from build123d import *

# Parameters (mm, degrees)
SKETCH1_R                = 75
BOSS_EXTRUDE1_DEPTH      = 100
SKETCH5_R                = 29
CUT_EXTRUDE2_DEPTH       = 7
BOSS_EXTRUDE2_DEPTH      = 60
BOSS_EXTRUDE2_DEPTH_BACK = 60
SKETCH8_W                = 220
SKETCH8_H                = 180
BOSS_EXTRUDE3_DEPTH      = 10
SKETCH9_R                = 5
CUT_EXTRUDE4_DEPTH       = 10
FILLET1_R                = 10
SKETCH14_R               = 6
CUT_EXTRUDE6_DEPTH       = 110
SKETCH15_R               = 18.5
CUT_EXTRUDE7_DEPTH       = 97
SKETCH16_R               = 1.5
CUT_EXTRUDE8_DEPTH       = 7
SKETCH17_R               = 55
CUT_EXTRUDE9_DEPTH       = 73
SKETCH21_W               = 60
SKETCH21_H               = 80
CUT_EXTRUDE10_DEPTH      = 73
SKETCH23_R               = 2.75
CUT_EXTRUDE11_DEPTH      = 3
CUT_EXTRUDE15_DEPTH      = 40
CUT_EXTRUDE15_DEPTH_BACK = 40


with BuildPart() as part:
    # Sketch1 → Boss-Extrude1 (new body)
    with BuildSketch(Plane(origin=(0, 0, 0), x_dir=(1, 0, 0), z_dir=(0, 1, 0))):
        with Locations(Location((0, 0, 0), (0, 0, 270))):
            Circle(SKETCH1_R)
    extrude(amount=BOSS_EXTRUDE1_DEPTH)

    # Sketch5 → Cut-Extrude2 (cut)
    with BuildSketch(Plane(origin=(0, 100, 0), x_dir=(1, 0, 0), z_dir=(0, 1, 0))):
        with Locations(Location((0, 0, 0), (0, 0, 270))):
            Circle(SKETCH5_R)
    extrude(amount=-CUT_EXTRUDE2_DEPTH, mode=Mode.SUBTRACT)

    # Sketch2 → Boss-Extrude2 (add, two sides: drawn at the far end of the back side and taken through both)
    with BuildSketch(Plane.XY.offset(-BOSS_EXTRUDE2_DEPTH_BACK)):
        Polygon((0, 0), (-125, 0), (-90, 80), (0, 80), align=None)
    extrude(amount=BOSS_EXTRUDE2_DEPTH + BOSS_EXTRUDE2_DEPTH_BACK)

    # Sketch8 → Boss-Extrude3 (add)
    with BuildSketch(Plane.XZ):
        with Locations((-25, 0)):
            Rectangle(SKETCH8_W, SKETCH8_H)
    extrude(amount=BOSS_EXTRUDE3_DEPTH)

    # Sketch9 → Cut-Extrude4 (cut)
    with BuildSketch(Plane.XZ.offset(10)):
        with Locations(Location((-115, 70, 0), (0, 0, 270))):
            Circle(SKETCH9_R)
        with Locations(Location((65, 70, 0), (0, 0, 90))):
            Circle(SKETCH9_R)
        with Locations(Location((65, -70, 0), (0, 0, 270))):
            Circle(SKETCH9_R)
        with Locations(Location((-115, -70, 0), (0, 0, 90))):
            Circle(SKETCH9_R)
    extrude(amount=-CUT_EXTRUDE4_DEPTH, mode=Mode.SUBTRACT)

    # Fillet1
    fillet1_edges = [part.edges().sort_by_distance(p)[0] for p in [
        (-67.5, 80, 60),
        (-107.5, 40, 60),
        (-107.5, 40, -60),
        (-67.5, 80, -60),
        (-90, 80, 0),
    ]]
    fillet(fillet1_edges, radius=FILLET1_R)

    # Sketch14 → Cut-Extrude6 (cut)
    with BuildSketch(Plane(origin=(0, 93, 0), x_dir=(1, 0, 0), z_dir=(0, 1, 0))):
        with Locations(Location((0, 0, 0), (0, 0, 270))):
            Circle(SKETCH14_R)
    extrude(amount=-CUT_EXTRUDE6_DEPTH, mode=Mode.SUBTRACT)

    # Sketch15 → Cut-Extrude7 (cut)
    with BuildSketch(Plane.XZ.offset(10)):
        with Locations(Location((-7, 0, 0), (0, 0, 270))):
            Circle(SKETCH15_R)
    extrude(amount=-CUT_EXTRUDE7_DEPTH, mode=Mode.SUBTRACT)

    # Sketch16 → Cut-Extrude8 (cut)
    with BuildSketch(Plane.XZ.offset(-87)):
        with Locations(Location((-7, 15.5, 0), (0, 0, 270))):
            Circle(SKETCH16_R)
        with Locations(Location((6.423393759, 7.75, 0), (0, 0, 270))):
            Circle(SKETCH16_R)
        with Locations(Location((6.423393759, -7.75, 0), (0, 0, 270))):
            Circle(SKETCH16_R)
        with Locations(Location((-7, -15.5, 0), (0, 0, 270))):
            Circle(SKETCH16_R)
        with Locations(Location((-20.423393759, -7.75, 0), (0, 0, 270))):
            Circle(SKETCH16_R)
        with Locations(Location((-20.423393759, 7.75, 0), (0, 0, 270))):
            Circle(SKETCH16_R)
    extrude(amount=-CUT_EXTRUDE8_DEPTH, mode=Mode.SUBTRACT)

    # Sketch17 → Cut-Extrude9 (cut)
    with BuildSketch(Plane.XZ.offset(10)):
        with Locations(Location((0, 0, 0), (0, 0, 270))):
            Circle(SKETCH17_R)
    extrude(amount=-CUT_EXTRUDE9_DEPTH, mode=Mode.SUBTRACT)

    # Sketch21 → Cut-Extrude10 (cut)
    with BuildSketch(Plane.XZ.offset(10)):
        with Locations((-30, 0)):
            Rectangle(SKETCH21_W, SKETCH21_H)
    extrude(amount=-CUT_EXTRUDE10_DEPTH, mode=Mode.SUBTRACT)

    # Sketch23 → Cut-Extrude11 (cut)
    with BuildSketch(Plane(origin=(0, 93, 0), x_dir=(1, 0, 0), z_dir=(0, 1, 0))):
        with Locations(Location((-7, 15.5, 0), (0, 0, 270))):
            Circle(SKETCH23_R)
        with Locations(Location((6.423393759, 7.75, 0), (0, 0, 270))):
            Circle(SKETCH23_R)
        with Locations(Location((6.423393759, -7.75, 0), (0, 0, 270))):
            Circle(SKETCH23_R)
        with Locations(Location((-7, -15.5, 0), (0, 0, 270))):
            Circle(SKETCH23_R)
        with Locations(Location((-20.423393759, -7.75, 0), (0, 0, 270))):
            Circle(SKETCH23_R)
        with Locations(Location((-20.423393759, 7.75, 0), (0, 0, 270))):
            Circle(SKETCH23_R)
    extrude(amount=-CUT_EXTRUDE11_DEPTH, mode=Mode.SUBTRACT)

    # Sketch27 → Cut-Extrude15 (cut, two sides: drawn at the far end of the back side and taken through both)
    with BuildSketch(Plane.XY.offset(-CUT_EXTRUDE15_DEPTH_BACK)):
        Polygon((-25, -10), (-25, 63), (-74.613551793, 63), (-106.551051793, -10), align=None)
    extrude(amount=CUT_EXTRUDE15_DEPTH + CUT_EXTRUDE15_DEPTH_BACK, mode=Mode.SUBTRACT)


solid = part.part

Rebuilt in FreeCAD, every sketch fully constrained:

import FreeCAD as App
import Part
import Sketcher

V = App.Vector
Q = App.Units.Quantity


def edges_at(feature, points):
    """Names of the edges that pass closest to the given points."""
    edges = feature.Shape.Edges
    near = lambda p: min(range(len(edges)), key=lambda i: edges[i].distToShape(Part.Vertex(*p))[0])
    return sorted({f"Edge{near(p) + 1}" for p in points})


def add_polygon(sketch, points):
    """Adds a closed chain of lines whose ends are joined by coincident constraints."""
    first, n = sketch.GeometryCount, len(points)
    for a, b in zip(points, points[1:] + points[:1]):
        sketch.addGeometry(Part.LineSegment(App.Vector(*a, 0), App.Vector(*b, 0)), False)
    for i in range(n):
        sketch.addConstraint(Sketcher.Constraint("Coincident", first + i, 2, first + (i + 1) % n, 1))

doc = App.newDocument("Part")
body = doc.addObject("PartDesign::Body", "Body")

sketch1 = body.newObject("Sketcher::SketchObject", "Sketch")
sketch1.AttachmentSupport = (doc.getObject("XZ_Plane"), [""])
sketch1.MapMode = "FlatFace"
sketch1.addGeometry(Part.Circle(V(0, 0, 0), V(0, 0, 1), 75), False)
sketch1.addConstraint([
    Sketcher.Constraint("Coincident", 0, 3, -1, 1),
    Sketcher.Constraint("Diameter", 0, Q("150 mm")),
])
pad1 = body.newObject("PartDesign::Pad", "Pad")
pad1.Profile = sketch1
pad1.Length = 100
pad1.Reversed = True

sketch2 = body.newObject("Sketcher::SketchObject", "Sketch001")
sketch2.AttachmentSupport = (doc.getObject("XZ_Plane"), [""])
sketch2.MapMode = "FlatFace"
sketch2.AttachmentOffset = App.Placement(V(0, 0, -100), App.Rotation())
sketch2.addGeometry(Part.Circle(V(0, 0, 0), V(0, 0, 1), 29), False)
sketch2.addConstraint([
    Sketcher.Constraint("Coincident", 0, 3, -1, 1),
    Sketcher.Constraint("Diameter", 0, Q("58 mm")),
])
pocket1 = body.newObject("PartDesign::Pocket", "Pocket")
pocket1.Profile = sketch2
pocket1.Length = 7
pocket1.Reversed = True

sketch3 = body.newObject("Sketcher::SketchObject", "Sketch002")
sketch3.AttachmentSupport = (doc.getObject("XY_Plane"), [""])
sketch3.MapMode = "FlatFace"
add_polygon(sketch3, [(-125, 0), (0, 0), (0, 80), (-90, 80)])
sketch3.addConstraint([
    Sketcher.Constraint("Horizontal", 0),
    Sketcher.Constraint("Vertical", 1),
    Sketcher.Constraint("Horizontal", 2),
    Sketcher.Constraint("Coincident", 0, 2, -1, 1),
    Sketcher.Constraint("DistanceX", 0, 1, 0, 2, Q("125 mm")),
    Sketcher.Constraint("DistanceX", 2, 2, 2, 1, Q("90 mm")),
    Sketcher.Constraint("DistanceY", 1, 1, 1, 2, Q("80 mm")),
])
pad2 = body.newObject("PartDesign::Pad", "Pad001")
pad2.Profile = sketch3
pad2.Type = "TwoLengths"
pad2.Length = 60
pad2.Length2 = 60

sketch4 = body.newObject("Sketcher::SketchObject", "Sketch003")
sketch4.AttachmentSupport = (doc.getObject("XZ_Plane"), [""])
sketch4.MapMode = "FlatFace"
add_polygon(sketch4, [(-135, 90), (-135, -90), (85, -90), (85, 90)])
sketch4.addConstraint([
    Sketcher.Constraint("Vertical", 0),
    Sketcher.Constraint("Horizontal", 1),
    Sketcher.Constraint("Vertical", 2),
    Sketcher.Constraint("Horizontal", 3),
    Sketcher.Constraint("DistanceX", 1, 1, 1, 2, Q("220 mm")),
    Sketcher.Constraint("DistanceY", 0, 2, 0, 1, Q("180 mm")),
    Sketcher.Constraint("DistanceX", 0, 2, -1, 1, Q("135 mm")),
    Sketcher.Constraint("DistanceY", 0, 2, -1, 1, Q("90 mm")),
])
pad3 = body.newObject("PartDesign::Pad", "Pad002")
pad3.Profile = sketch4
pad3.Length = 10

sketch5 = body.newObject("Sketcher::SketchObject", "Sketch004")
sketch5.AttachmentSupport = (doc.getObject("XZ_Plane"), [""])
sketch5.MapMode = "FlatFace"
sketch5.AttachmentOffset = App.Placement(V(0, 0, 10), App.Rotation())
sketch5.addGeometry([
    Part.Circle(V(-115, 70, 0), V(0, 0, 1), 5),
    Part.Circle(V(65, 70, 0), V(0, 0, 1), 5),
    Part.Circle(V(65, -70, 0), V(0, 0, 1), 5),
    Part.Circle(V(-115, -70, 0), V(0, 0, 1), 5),
], False)
sketch5.addConstraint([
    Sketcher.Constraint("Equal", 0, 1),
    Sketcher.Constraint("Equal", 1, 2),
    Sketcher.Constraint("Equal", 2, 3),
    Sketcher.Constraint("Symmetric", 1, 3, 2, 3, -1),
    Sketcher.Constraint("Symmetric", 0, 3, 3, 3, -1),
    Sketcher.Constraint("Horizontal", 0, 3, 1, 3),
    Sketcher.Constraint("Diameter", 0, Q("10 mm")),
    Sketcher.Constraint("DistanceX", 0, 3, -1, 1, Q("115 mm")),
    Sketcher.Constraint("DistanceY", -1, 1, 0, 3, Q("70 mm")),
    Sketcher.Constraint("DistanceX", -1, 1, 1, 3, Q("65 mm")),
])
pocket2 = body.newObject("PartDesign::Pocket", "Pocket001")
pocket2.Profile = sketch5
pocket2.Length = 10
doc.recompute()

fillet = body.newObject("PartDesign::Fillet", "Fillet")
fillet.Base = (pocket2, edges_at(pocket2, [
    (-67.5, 80, 60),
    (-107.5, 40, 60),
    (-107.5, 40, -60),
    (-67.5, 80, -60),
    (-90, 80, 0),
]))
fillet.Radius = 10

sketch6 = body.newObject("Sketcher::SketchObject", "Sketch005")
sketch6.AttachmentSupport = (doc.getObject("XZ_Plane"), [""])
sketch6.MapMode = "FlatFace"
sketch6.AttachmentOffset = App.Placement(V(0, 0, -93), App.Rotation())
sketch6.addGeometry(Part.Circle(V(0, 0, 0), V(0, 0, 1), 6), False)
sketch6.addConstraint([
    Sketcher.Constraint("Coincident", 0, 3, -1, 1),
    Sketcher.Constraint("Diameter", 0, Q("12 mm")),
])
pocket3 = body.newObject("PartDesign::Pocket", "Pocket002")
pocket3.Profile = sketch6
pocket3.Length = 110
pocket3.Reversed = True

sketch7 = body.newObject("Sketcher::SketchObject", "Sketch006")
sketch7.AttachmentSupport = (doc.getObject("XZ_Plane"), [""])
sketch7.MapMode = "FlatFace"
sketch7.AttachmentOffset = App.Placement(V(0, 0, 10), App.Rotation())
sketch7.addGeometry(Part.Circle(V(-7, 0, 0), V(0, 0, 1), 18), False)
sketch7.addConstraint([
    Sketcher.Constraint("PointOnObject", 0, 3, -1),
    Sketcher.Constraint("Diameter", 0, Q("37 mm")),
    Sketcher.Constraint("DistanceX", 0, 3, -1, 1, Q("7 mm")),
])
pocket4 = body.newObject("PartDesign::Pocket", "Pocket003")
pocket4.Profile = sketch7
pocket4.Length = 97

sketch8 = body.newObject("Sketcher::SketchObject", "Sketch007")
sketch8.AttachmentSupport = (doc.getObject("XZ_Plane"), [""])
sketch8.MapMode = "FlatFace"
sketch8.AttachmentOffset = App.Placement(V(0, 0, -87), App.Rotation())
sketch8.addGeometry([
    Part.Circle(V(-7, 15.5, 0), V(0, 0, 1), 1.5),
    Part.Circle(V(6.4, 7.8, 0), V(0, 0, 1), 1.5),
    Part.Circle(V(6.4, -7.8, 0), V(0, 0, 1), 1.5),
    Part.Circle(V(-7, -15.5, 0), V(0, 0, 1), 1.5),
    Part.Circle(V(-20.4, -7.8, 0), V(0, 0, 1), 1.5),
    Part.Circle(V(-20.4, 7.8, 0), V(0, 0, 1), 1.5),
], False)
sketch8.addConstraint([
    Sketcher.Constraint("Equal", 0, 1),
    Sketcher.Constraint("Equal", 1, 2),
    Sketcher.Constraint("Equal", 2, 3),
    Sketcher.Constraint("Equal", 3, 4),
    Sketcher.Constraint("Equal", 4, 5),
    Sketcher.Constraint("Symmetric", 1, 3, 2, 3, -1),
    Sketcher.Constraint("Symmetric", 0, 3, 3, 3, -1),
    Sketcher.Constraint("Symmetric", 4, 3, 5, 3, -1),
    Sketcher.Constraint("Horizontal", 2, 3, 4, 3),
    Sketcher.Constraint("Diameter", 0, Q("3 mm")),
    Sketcher.Constraint("DistanceX", 0, 3, -1, 1, Q("7 mm")),
    Sketcher.Constraint("DistanceY", 3, 3, 0, 3, Q("31 mm")),
    Sketcher.Constraint("DistanceY", 2, 3, 1, 3, Q("15.5 mm")),
    Sketcher.Constraint("DistanceX", -1, 1, 1, 3, Q("6.423394 mm")),
    Sketcher.Constraint("DistanceX", 4, 3, -1, 1, Q("20.423394 mm")),
])
pocket5 = body.newObject("PartDesign::Pocket", "Pocket004")
pocket5.Profile = sketch8
pocket5.Length = 7

sketch9 = body.newObject("Sketcher::SketchObject", "Sketch008")
sketch9.AttachmentSupport = (doc.getObject("XZ_Plane"), [""])
sketch9.MapMode = "FlatFace"
sketch9.AttachmentOffset = App.Placement(V(0, 0, 10), App.Rotation())
sketch9.addGeometry(Part.Circle(V(0, 0, 0), V(0, 0, 1), 55), False)
sketch9.addConstraint([
    Sketcher.Constraint("Coincident", 0, 3, -1, 1),
    Sketcher.Constraint("Diameter", 0, Q("110 mm")),
])
pocket6 = body.newObject("PartDesign::Pocket", "Pocket005")
pocket6.Profile = sketch9
pocket6.Length = 73

sketch10 = body.newObject("Sketcher::SketchObject", "Sketch009")
sketch10.AttachmentSupport = (doc.getObject("XZ_Plane"), [""])
sketch10.MapMode = "FlatFace"
sketch10.AttachmentOffset = App.Placement(V(0, 0, 10), App.Rotation())
add_polygon(sketch10, [(-60, 40), (-60, -40), (0, -40), (0, 40)])
sketch10.addConstraint([
    Sketcher.Constraint("Vertical", 0),
    Sketcher.Constraint("Horizontal", 1),
    Sketcher.Constraint("Vertical", 2),
    Sketcher.Constraint("Horizontal", 3),
    Sketcher.Constraint("Symmetric", 1, 2, 2, 2, -1, 1),
    Sketcher.Constraint("DistanceX", 1, 1, 1, 2, Q("60 mm")),
    Sketcher.Constraint("DistanceY", 0, 2, 0, 1, Q("80 mm")),
])
pocket7 = body.newObject("PartDesign::Pocket", "Pocket006")
pocket7.Profile = sketch10
pocket7.Length = 73

sketch11 = body.newObject("Sketcher::SketchObject", "Sketch010")
sketch11.AttachmentSupport = (doc.getObject("XZ_Plane"), [""])
sketch11.MapMode = "FlatFace"
sketch11.AttachmentOffset = App.Placement(V(0, 0, -93), App.Rotation())
sketch11.addGeometry([
    Part.Circle(V(-7, -15.5, 0), V(0, 0, 1), 2.8),
    Part.Circle(V(6.4, -7.8, 0), V(0, 0, 1), 2.8),
    Part.Circle(V(6.4, 7.8, 0), V(0, 0, 1), 2.8),
    Part.Circle(V(-7, 15.5, 0), V(0, 0, 1), 2.8),
    Part.Circle(V(-20.4, 7.8, 0), V(0, 0, 1), 2.8),
    Part.Circle(V(-20.4, -7.8, 0), V(0, 0, 1), 2.8),
], False)
sketch11.addConstraint([
    Sketcher.Constraint("Equal", 0, 1),
    Sketcher.Constraint("Equal", 1, 2),
    Sketcher.Constraint("Equal", 2, 3),
    Sketcher.Constraint("Equal", 3, 4),
    Sketcher.Constraint("Equal", 4, 5),
    Sketcher.Constraint("Symmetric", 1, 3, 2, 3, -1),
    Sketcher.Constraint("Symmetric", 0, 3, 3, 3, -1),
    Sketcher.Constraint("Symmetric", 4, 3, 5, 3, -1),
    Sketcher.Constraint("Horizontal", 2, 3, 4, 3),
    Sketcher.Constraint("Diameter", 0, Q("5.5 mm")),
    Sketcher.Constraint("DistanceX", 0, 3, -1, 1, Q("7 mm")),
    Sketcher.Constraint("DistanceY", 0, 3, 3, 3, Q("31 mm")),
    Sketcher.Constraint("DistanceY", 1, 3, 2, 3, Q("15.5 mm")),
    Sketcher.Constraint("DistanceX", -1, 1, 1, 3, Q("6.423394 mm")),
    Sketcher.Constraint("DistanceX", 4, 3, -1, 1, Q("20.423394 mm")),
])
pocket8 = body.newObject("PartDesign::Pocket", "Pocket007")
pocket8.Profile = sketch11
pocket8.Length = 3
pocket8.Reversed = True

sketch12 = body.newObject("Sketcher::SketchObject", "Sketch011")
sketch12.AttachmentSupport = (doc.getObject("XY_Plane"), [""])
sketch12.MapMode = "FlatFace"
add_polygon(sketch12, [(-25, -10), (-25, 63), (-75, 63), (-107, -10)])
sketch12.addConstraint([
    Sketcher.Constraint("Vertical", 0),
    Sketcher.Constraint("Horizontal", 1),
    Sketcher.Constraint("Horizontal", 3),
    Sketcher.Constraint("DistanceY", 0, 1, 0, 2, Q("73 mm")),
    Sketcher.Constraint("DistanceX", 0, 2, -1, 1, Q("25 mm")),
    Sketcher.Constraint("DistanceY", -1, 1, 0, 2, Q("63 mm")),
    Sketcher.Constraint("DistanceX", 1, 2, 1, 1, Q("49.613552 mm")),
    Sketcher.Constraint("DistanceX", 3, 1, 3, 2, Q("81.551052 mm")),
])
pocket9 = body.newObject("PartDesign::Pocket", "Pocket008")
pocket9.Profile = sketch12
pocket9.Type = "TwoLengths"
pocket9.Length = 40
pocket9.Length2 = 40
pocket9.Reversed = True

doc.recompute()
